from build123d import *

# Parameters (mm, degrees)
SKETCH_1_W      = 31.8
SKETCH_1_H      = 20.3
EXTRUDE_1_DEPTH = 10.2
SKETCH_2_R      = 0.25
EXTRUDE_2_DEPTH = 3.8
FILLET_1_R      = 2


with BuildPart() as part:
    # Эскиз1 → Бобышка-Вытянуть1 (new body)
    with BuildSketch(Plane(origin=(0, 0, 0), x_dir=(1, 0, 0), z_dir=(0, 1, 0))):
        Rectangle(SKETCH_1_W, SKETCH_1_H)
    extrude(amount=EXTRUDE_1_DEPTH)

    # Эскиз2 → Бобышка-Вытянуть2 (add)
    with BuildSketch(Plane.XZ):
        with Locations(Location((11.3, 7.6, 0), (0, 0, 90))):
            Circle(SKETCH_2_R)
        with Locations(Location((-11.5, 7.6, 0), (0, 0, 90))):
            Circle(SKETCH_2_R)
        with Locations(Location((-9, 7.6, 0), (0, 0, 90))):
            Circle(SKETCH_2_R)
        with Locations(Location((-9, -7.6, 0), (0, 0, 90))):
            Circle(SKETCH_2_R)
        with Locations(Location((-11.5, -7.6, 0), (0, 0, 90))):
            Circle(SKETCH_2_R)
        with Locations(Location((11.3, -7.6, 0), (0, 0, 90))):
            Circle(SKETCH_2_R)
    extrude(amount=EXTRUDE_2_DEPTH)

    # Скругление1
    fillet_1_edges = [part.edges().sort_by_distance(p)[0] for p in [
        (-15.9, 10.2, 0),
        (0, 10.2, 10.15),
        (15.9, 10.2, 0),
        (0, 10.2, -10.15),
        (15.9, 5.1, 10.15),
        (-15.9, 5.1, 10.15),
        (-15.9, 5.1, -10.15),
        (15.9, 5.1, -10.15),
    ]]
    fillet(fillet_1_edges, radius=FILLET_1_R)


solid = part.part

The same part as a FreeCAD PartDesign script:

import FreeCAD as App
import Part
import Sketcher
from FreeCAD import Vector


def edges_at(feature, points):
    """Names of the edges that pass closest to the given points."""
    edges = feature.Shape.Edges
    near = lambda p: min(range(len(edges)), key=lambda i: edges[i].distToShape(Part.Vertex(*p))[0])
    return sorted({f"Edge{near(p) + 1}" for p in points})

doc = App.newDocument("Part")
body = doc.addObject("PartDesign::Body", "Body")

sketch1 = body.newObject("Sketcher::SketchObject", "Sketch")
sketch1.AttachmentSupport = (doc.getObject("XZ_Plane"), [""])
sketch1.MapMode = "FlatFace"
sketch1.addGeometry(Part.LineSegment(Vector(-15.9, -10.15, 0), Vector(-15.9, 10.15, 0)), False)
sketch1.addGeometry(Part.LineSegment(Vector(-15.9, 10.15, 0), Vector(15.9, 10.15, 0)), False)
sketch1.addGeometry(Part.LineSegment(Vector(15.9, 10.15, 0), Vector(15.9, -10.15, 0)), False)
sketch1.addGeometry(Part.LineSegment(Vector(15.9, -10.15, 0), Vector(-15.9, -10.15, 0)), False)
sketch1.addConstraint(Sketcher.Constraint("Coincident", 0, 2, 1, 1))
sketch1.addConstraint(Sketcher.Constraint("Coincident", 1, 2, 2, 1))
sketch1.addConstraint(Sketcher.Constraint("Coincident", 2, 2, 3, 1))
sketch1.addConstraint(Sketcher.Constraint("Coincident", 3, 2, 0, 1))
sketch1.addConstraint(Sketcher.Constraint("Vertical", 0))
sketch1.addConstraint(Sketcher.Constraint("Horizontal", 1))
sketch1.addConstraint(Sketcher.Constraint("Vertical", 2))
sketch1.addConstraint(Sketcher.Constraint("Horizontal", 3))
sketch1.addConstraint(Sketcher.Constraint("Symmetric", 0, 2, 2, 2, -1, 1))
sketch1.addConstraint(Sketcher.Constraint("DistanceX", 1, 1, 1, 2, 31.8))
sketch1.addConstraint(Sketcher.Constraint("DistanceY", 0, 1, 0, 2, 20.3))
pad1 = body.newObject("PartDesign::Pad", "Pad")
pad1.Profile = sketch1
pad1.Length = 10.2
pad1.Reversed = True

sketch2 = body.newObject("Sketcher::SketchObject", "Sketch001")
sketch2.AttachmentSupport = (doc.getObject("XZ_Plane"), [""])
sketch2.MapMode = "FlatFace"
sketch2.addGeometry(Part.Circle(Vector(11.3, 7.6, 0), Vector(0, 0, 1), 0.25), False)
sketch2.addGeometry(Part.Circle(Vector(-11.5, 7.6, 0), Vector(0, 0, 1), 0.25), False)
sketch2.addGeometry(Part.Circle(Vector(-9, 7.6, 0), Vector(0, 0, 1), 0.25), False)
sketch2.addGeometry(Part.Circle(Vector(-9, -7.6, 0), Vector(0, 0, 1), 0.25), False)
sketch2.addGeometry(Part.Circle(Vector(-11.5, -7.6, 0), Vector(0, 0, 1), 0.25), False)
sketch2.addGeometry(Part.Circle(Vector(11.3, -7.6, 0), Vector(0, 0, 1), 0.25), False)
sketch2.addConstraint(Sketcher.Constraint("Equal", 0, 1))
sketch2.addConstraint(Sketcher.Constraint("Equal", 1, 2))
sketch2.addConstraint(Sketcher.Constraint("Equal", 2, 3))
sketch2.addConstraint(Sketcher.Constraint("Equal", 3, 4))
sketch2.addConstraint(Sketcher.Constraint("Equal", 4, 5))
sketch2.addConstraint(Sketcher.Constraint("Symmetric", 2, 3, 3, 3, -1))
sketch2.addConstraint(Sketcher.Constraint("Symmetric", 1, 3, 4, 3, -1))
sketch2.addConstraint(Sketcher.Constraint("Symmetric", 0, 3, 5, 3, -1))
sketch2.addConstraint(Sketcher.Constraint("Horizontal", 0, 3, 1, 3))
sketch2.addConstraint(Sketcher.Constraint("Horizontal", 1, 3, 2, 3))
sketch2.addConstraint(Sketcher.Constraint("Diameter", 0, 0.5))
sketch2.addConstraint(Sketcher.Constraint("DistanceX", 2, 3, -1, 1, 9.0))
sketch2.addConstraint(Sketcher.Constraint("DistanceX", -1, 1, 0, 3, 11.3))
sketch2.addConstraint(Sketcher.Constraint("DistanceY", -1, 1, 0, 3, 7.6))
sketch2.addConstraint(Sketcher.Constraint("DistanceX", 1, 3, -1, 1, 11.5))
pad2 = body.newObject("PartDesign::Pad", "Pad001")
pad2.Profile = sketch2
pad2.Length = 3.8
doc.recompute()

fillet = body.newObject("PartDesign::Fillet", "Fillet")
fillet.Base = (pad2, edges_at(pad2, [
    (-15.9, 10.2, 0),
    (0, 10.2, 10.15),
    (15.9, 10.2, 0),
    (0, 10.2, -10.15),
    (15.9, 5.1, 10.15),
    (-15.9, 5.1, 10.15),
    (-15.9, 5.1, -10.15),
    (15.9, 5.1, -10.15),
]))
fillet.Radius = 2

doc.recompute()
